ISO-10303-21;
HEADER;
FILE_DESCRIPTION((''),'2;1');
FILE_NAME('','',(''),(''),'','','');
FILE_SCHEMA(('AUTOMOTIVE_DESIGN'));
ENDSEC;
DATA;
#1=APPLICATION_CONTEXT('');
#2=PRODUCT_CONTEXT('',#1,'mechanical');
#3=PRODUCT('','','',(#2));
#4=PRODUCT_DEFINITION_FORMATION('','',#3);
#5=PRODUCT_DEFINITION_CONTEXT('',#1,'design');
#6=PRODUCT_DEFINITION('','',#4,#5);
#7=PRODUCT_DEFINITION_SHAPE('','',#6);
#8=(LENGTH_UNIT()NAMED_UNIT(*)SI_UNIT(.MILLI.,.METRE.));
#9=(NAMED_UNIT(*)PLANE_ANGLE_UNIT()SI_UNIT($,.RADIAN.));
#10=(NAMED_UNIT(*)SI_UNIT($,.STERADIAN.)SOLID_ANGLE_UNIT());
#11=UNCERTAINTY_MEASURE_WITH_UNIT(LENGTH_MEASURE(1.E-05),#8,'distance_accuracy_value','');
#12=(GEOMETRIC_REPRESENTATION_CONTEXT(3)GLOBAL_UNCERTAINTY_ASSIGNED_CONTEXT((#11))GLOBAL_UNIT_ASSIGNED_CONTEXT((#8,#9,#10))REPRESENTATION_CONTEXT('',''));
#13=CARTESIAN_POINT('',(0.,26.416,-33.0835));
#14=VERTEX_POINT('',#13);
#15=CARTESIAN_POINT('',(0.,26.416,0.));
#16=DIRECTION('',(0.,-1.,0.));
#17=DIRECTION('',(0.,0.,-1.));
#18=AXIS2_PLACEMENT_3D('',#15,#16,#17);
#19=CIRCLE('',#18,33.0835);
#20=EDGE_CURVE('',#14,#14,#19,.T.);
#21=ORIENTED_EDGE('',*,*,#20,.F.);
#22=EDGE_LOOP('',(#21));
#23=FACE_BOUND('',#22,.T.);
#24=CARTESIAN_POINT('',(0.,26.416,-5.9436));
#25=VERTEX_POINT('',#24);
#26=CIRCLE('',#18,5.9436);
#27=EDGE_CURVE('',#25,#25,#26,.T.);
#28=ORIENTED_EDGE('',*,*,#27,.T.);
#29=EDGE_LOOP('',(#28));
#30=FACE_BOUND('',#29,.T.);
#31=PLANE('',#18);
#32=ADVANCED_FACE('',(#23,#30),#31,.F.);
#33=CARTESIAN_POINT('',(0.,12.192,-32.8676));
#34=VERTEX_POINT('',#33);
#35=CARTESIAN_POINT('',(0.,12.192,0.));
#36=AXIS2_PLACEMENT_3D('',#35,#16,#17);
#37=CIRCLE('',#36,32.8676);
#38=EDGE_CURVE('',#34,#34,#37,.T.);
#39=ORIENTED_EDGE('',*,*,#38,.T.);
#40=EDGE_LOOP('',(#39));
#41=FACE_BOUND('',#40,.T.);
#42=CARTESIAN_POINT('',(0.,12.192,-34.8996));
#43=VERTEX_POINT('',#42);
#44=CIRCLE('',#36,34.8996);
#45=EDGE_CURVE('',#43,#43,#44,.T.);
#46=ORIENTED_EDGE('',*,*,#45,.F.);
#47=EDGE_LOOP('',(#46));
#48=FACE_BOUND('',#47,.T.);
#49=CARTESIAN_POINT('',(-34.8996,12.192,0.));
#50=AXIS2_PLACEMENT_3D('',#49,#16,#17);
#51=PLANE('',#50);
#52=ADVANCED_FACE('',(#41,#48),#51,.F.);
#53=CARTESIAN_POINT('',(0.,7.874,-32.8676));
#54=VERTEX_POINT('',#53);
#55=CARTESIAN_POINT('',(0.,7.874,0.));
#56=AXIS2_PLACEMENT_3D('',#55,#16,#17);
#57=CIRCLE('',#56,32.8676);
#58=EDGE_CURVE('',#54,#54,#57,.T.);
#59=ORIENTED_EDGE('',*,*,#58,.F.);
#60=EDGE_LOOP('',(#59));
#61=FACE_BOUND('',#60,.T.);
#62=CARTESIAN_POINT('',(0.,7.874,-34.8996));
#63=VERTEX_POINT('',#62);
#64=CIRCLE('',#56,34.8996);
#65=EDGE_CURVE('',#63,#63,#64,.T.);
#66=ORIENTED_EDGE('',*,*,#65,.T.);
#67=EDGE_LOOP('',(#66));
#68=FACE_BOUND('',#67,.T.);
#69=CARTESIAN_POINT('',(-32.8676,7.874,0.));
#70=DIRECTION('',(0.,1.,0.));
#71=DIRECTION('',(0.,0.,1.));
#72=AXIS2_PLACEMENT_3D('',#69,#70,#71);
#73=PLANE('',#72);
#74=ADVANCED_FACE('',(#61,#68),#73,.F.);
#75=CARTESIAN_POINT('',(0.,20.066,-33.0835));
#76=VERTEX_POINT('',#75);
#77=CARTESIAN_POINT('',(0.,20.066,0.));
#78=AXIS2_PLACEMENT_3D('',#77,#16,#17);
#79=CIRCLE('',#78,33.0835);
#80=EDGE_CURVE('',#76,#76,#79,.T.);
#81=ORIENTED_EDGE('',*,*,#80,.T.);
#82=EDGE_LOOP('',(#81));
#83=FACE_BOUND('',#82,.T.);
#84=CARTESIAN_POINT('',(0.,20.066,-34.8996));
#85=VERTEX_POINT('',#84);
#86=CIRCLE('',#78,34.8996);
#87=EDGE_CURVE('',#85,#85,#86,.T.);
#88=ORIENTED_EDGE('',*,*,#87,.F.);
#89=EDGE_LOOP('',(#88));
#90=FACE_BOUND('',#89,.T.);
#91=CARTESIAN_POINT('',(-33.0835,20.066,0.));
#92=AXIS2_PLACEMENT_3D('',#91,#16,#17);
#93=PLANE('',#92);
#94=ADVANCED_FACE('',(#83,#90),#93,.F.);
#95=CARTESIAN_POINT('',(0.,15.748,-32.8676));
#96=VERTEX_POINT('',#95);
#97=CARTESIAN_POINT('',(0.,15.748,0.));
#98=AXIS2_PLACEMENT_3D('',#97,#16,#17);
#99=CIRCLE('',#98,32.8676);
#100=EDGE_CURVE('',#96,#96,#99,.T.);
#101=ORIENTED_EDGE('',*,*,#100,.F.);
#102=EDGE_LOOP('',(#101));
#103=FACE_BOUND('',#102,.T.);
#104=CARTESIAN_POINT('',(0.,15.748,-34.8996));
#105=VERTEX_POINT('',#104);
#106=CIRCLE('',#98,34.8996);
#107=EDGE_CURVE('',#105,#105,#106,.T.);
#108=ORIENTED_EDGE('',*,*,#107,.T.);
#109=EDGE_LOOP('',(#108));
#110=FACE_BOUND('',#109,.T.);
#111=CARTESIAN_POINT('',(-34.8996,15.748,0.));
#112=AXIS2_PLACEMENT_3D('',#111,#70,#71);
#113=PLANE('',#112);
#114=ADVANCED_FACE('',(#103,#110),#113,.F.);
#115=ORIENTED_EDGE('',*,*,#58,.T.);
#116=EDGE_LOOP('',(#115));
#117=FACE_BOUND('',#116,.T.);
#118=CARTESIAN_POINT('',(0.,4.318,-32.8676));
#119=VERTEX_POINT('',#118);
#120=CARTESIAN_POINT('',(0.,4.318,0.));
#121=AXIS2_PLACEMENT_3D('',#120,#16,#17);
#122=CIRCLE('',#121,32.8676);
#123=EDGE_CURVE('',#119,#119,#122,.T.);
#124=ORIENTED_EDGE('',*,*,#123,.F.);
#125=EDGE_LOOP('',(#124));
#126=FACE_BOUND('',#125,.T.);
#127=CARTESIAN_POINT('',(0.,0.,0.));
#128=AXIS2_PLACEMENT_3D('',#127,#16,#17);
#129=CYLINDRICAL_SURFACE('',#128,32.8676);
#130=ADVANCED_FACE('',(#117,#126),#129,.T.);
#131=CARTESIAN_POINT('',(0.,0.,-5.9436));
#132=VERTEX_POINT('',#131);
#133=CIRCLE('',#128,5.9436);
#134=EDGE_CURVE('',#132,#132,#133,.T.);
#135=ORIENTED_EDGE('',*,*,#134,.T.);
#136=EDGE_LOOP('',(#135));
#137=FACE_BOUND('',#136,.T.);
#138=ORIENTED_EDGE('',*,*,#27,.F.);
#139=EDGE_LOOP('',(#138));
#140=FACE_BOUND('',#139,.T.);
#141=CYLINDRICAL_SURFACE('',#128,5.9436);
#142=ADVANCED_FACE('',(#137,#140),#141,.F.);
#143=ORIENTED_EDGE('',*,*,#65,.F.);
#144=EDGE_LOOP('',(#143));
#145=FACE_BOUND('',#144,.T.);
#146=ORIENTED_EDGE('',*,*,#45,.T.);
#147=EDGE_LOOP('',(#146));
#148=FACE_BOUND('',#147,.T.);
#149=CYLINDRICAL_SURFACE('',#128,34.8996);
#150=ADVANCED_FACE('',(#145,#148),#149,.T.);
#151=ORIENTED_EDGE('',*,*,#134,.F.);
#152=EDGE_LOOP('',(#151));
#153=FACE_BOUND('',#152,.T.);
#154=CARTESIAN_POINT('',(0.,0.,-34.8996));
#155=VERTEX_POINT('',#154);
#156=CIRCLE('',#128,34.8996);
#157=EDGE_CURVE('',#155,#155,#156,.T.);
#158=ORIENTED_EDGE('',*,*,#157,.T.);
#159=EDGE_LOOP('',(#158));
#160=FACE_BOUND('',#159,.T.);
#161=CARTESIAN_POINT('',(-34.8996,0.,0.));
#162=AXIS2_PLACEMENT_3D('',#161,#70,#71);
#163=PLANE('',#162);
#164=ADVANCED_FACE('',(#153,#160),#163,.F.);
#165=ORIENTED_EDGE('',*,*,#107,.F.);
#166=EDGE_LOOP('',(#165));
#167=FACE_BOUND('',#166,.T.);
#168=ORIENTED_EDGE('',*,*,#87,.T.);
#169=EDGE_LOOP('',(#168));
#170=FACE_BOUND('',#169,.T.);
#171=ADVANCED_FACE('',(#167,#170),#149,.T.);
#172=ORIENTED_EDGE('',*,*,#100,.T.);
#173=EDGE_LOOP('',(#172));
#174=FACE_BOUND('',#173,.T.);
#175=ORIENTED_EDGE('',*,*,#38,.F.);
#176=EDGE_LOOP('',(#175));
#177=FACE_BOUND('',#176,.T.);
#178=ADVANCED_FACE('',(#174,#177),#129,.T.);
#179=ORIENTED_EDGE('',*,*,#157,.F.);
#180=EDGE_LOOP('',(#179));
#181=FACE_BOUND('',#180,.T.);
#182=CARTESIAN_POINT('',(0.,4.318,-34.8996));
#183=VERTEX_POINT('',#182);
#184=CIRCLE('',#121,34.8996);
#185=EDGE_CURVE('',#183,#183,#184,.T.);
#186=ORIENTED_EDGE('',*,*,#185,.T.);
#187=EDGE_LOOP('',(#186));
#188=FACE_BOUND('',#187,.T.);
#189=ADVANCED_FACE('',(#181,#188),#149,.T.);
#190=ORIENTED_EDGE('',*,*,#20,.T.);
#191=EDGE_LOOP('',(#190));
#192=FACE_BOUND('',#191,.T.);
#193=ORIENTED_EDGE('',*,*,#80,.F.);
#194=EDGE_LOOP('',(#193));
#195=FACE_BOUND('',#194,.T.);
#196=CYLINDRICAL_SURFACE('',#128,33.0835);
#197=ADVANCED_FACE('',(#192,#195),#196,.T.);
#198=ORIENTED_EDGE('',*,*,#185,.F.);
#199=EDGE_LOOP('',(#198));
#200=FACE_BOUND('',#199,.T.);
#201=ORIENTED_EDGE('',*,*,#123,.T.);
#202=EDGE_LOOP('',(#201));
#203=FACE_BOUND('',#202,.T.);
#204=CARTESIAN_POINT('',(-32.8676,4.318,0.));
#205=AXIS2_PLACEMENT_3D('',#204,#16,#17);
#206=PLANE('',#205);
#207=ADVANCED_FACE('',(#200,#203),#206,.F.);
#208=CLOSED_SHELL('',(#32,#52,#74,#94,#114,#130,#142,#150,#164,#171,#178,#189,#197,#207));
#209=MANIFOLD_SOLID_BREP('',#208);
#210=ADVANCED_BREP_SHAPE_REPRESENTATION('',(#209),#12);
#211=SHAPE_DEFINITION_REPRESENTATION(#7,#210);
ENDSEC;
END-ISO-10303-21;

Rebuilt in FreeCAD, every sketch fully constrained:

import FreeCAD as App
import Part
import Sketcher

V = App.Vector
Q = App.Units.Quantity

doc = App.newDocument("Part")
body = doc.addObject("PartDesign::Body", "Body")

# Sketch on XY plane
sketch1 = body.newObject("Sketcher::SketchObject", "Sketch")
sketch1.AttachmentSupport = (doc.getObject("XY_Plane"), [""])
sketch1.MapMode = "FlatFace"
sketch1.addGeometry(Part.LineSegment(V(0, 0, 0), V(0, 26.4, 0)), False)
sketch1.addGeometry(Part.LineSegment(V(0, 26.4, 0), V(-33.1, 26.4, 0)), False)
sketch1.addGeometry(Part.LineSegment(V(-33.1, 26.4, 0), V(-33.1, 20.1, 0)), False)
sketch1.addGeometry(Part.LineSegment(V(-33.1, 20.1, 0), V(-34.9, 20.1, 0)), False)
sketch1.addGeometry(Part.LineSegment(V(-34.9, 20.1, 0), V(-34.9, 15.7, 0)), False)
sketch1.addGeometry(Part.LineSegment(V(-34.9, 15.7, 0), V(-32.9, 15.7, 0)), False)
sketch1.addGeometry(Part.LineSegment(V(-32.9, 15.7, 0), V(-32.9, 12.2, 0)), False)
sketch1.addGeometry(Part.LineSegment(V(-32.9, 12.2, 0), V(-34.9, 12.2, 0)), False)
sketch1.addGeometry(Part.LineSegment(V(-34.9, 12.2, 0), V(-34.9, 7.9, 0)), False)
sketch1.addGeometry(Part.LineSegment(V(-34.9, 7.9, 0), V(-32.9, 7.9, 0)), False)
sketch1.addGeometry(Part.LineSegment(V(-32.9, 7.9, 0), V(-32.9, 4.3, 0)), False)
sketch1.addGeometry(Part.LineSegment(V(-32.9, 4.3, 0), V(-34.9, 4.3, 0)), False)
sketch1.addGeometry(Part.LineSegment(V(-34.9, 4.3, 0), V(-34.9, 0, 0)), False)
sketch1.addGeometry(Part.LineSegment(V(-34.9, 0, 0), V(0, 0, 0)), False)
sketch1.addConstraint(Sketcher.Constraint("Coincident", 0, 2, 1, 1))
sketch1.addConstraint(Sketcher.Constraint("Coincident", 1, 2, 2, 1))
sketch1.addConstraint(Sketcher.Constraint("Coincident", 2, 2, 3, 1))
sketch1.addConstraint(Sketcher.Constraint("Coincident", 3, 2, 4, 1))
sketch1.addConstraint(Sketcher.Constraint("Coincident", 4, 2, 5, 1))
sketch1.addConstraint(Sketcher.Constraint("Coincident", 5, 2, 6, 1))
sketch1.addConstraint(Sketcher.Constraint("Coincident", 6, 2, 7, 1))
sketch1.addConstraint(Sketcher.Constraint("Coincident", 7, 2, 8, 1))
sketch1.addConstraint(Sketcher.Constraint("Coincident", 8, 2, 9, 1))
sketch1.addConstraint(Sketcher.Constraint("Coincident", 9, 2, 10, 1))
sketch1.addConstraint(Sketcher.Constraint("Coincident", 10, 2, 11, 1))
sketch1.addConstraint(Sketcher.Constraint("Coincident", 11, 2, 12, 1))
sketch1.addConstraint(Sketcher.Constraint("Coincident", 12, 2, 13, 1))
sketch1.addConstraint(Sketcher.Constraint("Coincident", 13, 2, 0, 1))
sketch1.addConstraint(Sketcher.Constraint("Vertical", 0))
sketch1.addConstraint(Sketcher.Constraint("Horizontal", 1))
sketch1.addConstraint(Sketcher.Constraint("Vertical", 2))
sketch1.addConstraint(Sketcher.Constraint("Horizontal", 3))
sketch1.addConstraint(Sketcher.Constraint("Vertical", 4))
sketch1.addConstraint(Sketcher.Constraint("Horizontal", 5))
sketch1.addConstraint(Sketcher.Constraint("Vertical", 6))
sketch1.addConstraint(Sketcher.Constraint("Horizontal", 7))
sketch1.addConstraint(Sketcher.Constraint("Vertical", 8))
sketch1.addConstraint(Sketcher.Constraint("Horizontal", 9))
sketch1.addConstraint(Sketcher.Constraint("Vertical", 10))
sketch1.addConstraint(Sketcher.Constraint("Horizontal", 11))
sketch1.addConstraint(Sketcher.Constraint("Vertical", 12))
sketch1.addConstraint(Sketcher.Constraint("Horizontal", 13))
sketch1.addConstraint(Sketcher.Constraint("Coincident", 13, 2, -1, 1))
sketch1.addConstraint(Sketcher.Constraint("Vertical", 4, 2, 7, 2))
sketch1.addConstraint(Sketcher.Constraint("Vertical", 6, 2, 9, 2))
sketch1.addConstraint(Sketcher.Constraint("Vertical", 8, 2, 11, 2))
sketch1.addConstraint(Sketcher.Constraint("Equal", 4, 8))
sketch1.addConstraint(Sketcher.Constraint("Equal", 6, 10))
sketch1.addConstraint(Sketcher.Constraint("Equal", 8, 12))
sketch1.addConstraint(Sketcher.Constraint("DistanceX", 5, 1, 5, 2, Q("0.08 in")))
sketch1.addConstraint(Sketcher.Constraint("DistanceY", 0, 1, 0, 2, Q("1.04 in")))
sketch1.addConstraint(Sketcher.Constraint("DistanceY", 2, 2, 2, 1, Q("0.25 in")))
sketch1.addConstraint(Sketcher.Constraint("DistanceY", 4, 2, 4, 1, Q("0.17 in")))
sketch1.addConstraint(Sketcher.Constraint("DistanceX", 13, 1, 13, 2, Q("1.374 in")))
sketch1.addConstraint(Sketcher.Constraint("DistanceX", 1, 2, 1, 1, Q("1.3025 in")))
revolution = body.newObject("PartDesign::Revolution", "Revolution")
revolution.Profile = sketch1
revolution.ReferenceAxis = (sketch1, ["V_Axis"])
revolution.Angle = 360

# Sketch on XZ plane
sketch2 = body.newObject("Sketcher::SketchObject", "Sketch001")
sketch2.AttachmentSupport = (doc.getObject("XZ_Plane"), [""])
sketch2.MapMode = "FlatFace"
sketch2.addGeometry(Part.Circle(V(0, 0, 0), V(0, 0, 1), 6), False)
sketch2.addConstraint(Sketcher.Constraint("Coincident", 0, 3, -1, 1))
sketch2.addConstraint(Sketcher.Constraint("Diameter", 0, Q("0.468 in")))
doc.recompute()
hole = body.newObject("PartDesign::Hole", "Hole")
hole.Profile = sketch2
hole.ThreadType = "None"
hole.Diameter = Q("0.468 in")
hole.DepthType = "ThroughAll"

doc.recompute()
